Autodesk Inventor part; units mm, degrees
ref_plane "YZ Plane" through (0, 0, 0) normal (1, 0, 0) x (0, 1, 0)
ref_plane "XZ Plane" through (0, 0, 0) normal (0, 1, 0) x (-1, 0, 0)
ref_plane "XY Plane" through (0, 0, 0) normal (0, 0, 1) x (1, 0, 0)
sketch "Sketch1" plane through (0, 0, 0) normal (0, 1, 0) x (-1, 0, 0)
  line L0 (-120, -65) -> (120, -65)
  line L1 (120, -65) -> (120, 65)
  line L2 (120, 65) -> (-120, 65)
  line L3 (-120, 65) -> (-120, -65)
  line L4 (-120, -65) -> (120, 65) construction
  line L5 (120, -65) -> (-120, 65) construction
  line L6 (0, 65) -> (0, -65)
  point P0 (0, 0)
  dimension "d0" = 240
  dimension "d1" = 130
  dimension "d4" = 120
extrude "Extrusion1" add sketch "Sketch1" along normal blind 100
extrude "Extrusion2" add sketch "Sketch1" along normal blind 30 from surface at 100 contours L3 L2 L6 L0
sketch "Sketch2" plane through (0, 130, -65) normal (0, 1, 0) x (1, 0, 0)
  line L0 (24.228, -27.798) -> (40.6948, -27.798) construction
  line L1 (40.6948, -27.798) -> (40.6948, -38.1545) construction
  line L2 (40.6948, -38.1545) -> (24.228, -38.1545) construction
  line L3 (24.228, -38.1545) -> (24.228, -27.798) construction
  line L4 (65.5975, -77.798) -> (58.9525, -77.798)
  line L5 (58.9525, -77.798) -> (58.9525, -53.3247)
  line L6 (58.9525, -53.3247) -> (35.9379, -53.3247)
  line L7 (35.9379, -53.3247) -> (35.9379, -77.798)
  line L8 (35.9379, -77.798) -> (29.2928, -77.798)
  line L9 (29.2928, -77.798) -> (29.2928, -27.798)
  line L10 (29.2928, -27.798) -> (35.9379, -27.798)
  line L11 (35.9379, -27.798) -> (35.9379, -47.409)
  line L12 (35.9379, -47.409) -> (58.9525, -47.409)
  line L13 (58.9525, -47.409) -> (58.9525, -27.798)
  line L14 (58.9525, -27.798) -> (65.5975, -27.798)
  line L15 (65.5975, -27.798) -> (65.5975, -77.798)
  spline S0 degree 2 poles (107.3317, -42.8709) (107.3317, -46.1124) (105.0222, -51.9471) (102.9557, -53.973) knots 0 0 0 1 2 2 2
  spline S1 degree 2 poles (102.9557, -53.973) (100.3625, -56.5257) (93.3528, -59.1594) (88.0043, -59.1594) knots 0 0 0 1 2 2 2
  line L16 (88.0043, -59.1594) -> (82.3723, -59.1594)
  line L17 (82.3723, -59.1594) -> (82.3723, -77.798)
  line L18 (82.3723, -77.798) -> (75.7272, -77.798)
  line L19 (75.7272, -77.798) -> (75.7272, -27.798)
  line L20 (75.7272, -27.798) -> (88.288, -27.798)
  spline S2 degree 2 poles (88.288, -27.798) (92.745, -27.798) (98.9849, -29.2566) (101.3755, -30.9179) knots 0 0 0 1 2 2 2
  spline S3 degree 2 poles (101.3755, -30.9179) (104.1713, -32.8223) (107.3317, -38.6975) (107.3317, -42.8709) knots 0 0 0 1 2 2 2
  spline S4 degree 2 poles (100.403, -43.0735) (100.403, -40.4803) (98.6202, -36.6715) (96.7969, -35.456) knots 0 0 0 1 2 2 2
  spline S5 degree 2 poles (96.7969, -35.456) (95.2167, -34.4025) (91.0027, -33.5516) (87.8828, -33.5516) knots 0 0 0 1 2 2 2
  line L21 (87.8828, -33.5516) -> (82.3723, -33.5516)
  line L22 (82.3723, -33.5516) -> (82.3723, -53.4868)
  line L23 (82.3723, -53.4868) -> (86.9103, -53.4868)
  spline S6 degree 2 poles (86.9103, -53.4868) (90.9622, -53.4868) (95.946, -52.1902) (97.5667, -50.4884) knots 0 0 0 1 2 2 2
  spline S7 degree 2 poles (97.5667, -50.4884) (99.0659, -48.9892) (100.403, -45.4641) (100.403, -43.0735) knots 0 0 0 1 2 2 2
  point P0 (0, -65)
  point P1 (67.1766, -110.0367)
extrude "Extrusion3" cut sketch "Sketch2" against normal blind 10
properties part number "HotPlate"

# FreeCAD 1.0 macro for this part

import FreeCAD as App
import Part
import Sketcher
from FreeCAD import Vector
Q = App.Units.Quantity

doc = App.newDocument("Part")
body = doc.addObject("PartDesign::Body", "Body")

sketch1 = body.newObject("Sketcher::SketchObject", "Sketch")
sketch1.AttachmentSupport = (doc.getObject("XZ_Plane"), [""])
sketch1.MapMode = "FlatFace"
sketch1.addGeometry(Part.LineSegment(Vector(120, 65, 0), Vector(120, -65, 0)), False)
sketch1.addGeometry(Part.LineSegment(Vector(120, -65, 0), Vector(-120, -65, 0)), False)
sketch1.addGeometry(Part.LineSegment(Vector(-120, -65, 0), Vector(-120, 65, 0)), False)
sketch1.addGeometry(Part.LineSegment(Vector(-120, 65, 0), Vector(120, 65, 0)), False)
sketch1.addConstraint(Sketcher.Constraint("Coincident", 0, 2, 1, 1))
sketch1.addConstraint(Sketcher.Constraint("Coincident", 1, 2, 2, 1))
sketch1.addConstraint(Sketcher.Constraint("Coincident", 2, 2, 3, 1))
sketch1.addConstraint(Sketcher.Constraint("Coincident", 3, 2, 0, 1))
sketch1.addConstraint(Sketcher.Constraint("Vertical", 0))
sketch1.addConstraint(Sketcher.Constraint("Horizontal", 1))
sketch1.addConstraint(Sketcher.Constraint("Vertical", 2))
sketch1.addConstraint(Sketcher.Constraint("Horizontal", 3))
sketch1.addConstraint(Sketcher.Constraint("Symmetric", 0, 2, 2, 2, -1, 1))
sketch1.addConstraint(Sketcher.Constraint("DistanceX", 1, 2, 1, 1, Q("240 mm")))
sketch1.addConstraint(Sketcher.Constraint("DistanceY", 0, 2, 0, 1, Q("130 mm")))
pad1 = body.newObject("PartDesign::Pad", "Pad")
pad1.Profile = sketch1
pad1.Length = 100
pad1.Reversed = True

sketch2 = body.newObject("Sketcher::SketchObject", "Sketch001")
sketch2.AttachmentSupport = (doc.getObject("XZ_Plane"), [""])
sketch2.MapMode = "FlatFace"
sketch2.AttachmentOffset = App.Placement(Vector(0, 0, -100), App.Rotation())
sketch2.addGeometry(Part.LineSegment(Vector(120, 65, 0), Vector(120, -65, 0)), False)
sketch2.addGeometry(Part.LineSegment(Vector(120, -65, 0), Vector(0, -65, 0)), False)
sketch2.addGeometry(Part.LineSegment(Vector(0, -65, 0), Vector(0, 65, 0)), False)
sketch2.addGeometry(Part.LineSegment(Vector(0, 65, 0), Vector(120, 65, 0)), False)
sketch2.addConstraint(Sketcher.Constraint("Coincident", 0, 2, 1, 1))
sketch2.addConstraint(Sketcher.Constraint("Coincident", 1, 2, 2, 1))
sketch2.addConstraint(Sketcher.Constraint("Coincident", 2, 2, 3, 1))
sketch2.addConstraint(Sketcher.Constraint("Coincident", 3, 2, 0, 1))
sketch2.addConstraint(Sketcher.Constraint("Vertical", 0))
sketch2.addConstraint(Sketcher.Constraint("Horizontal", 1))
sketch2.addConstraint(Sketcher.Constraint("Vertical", 2))
sketch2.addConstraint(Sketcher.Constraint("Horizontal", 3))
sketch2.addConstraint(Sketcher.Constraint("Symmetric", 1, 2, 2, 2, -1, 1))
sketch2.addConstraint(Sketcher.Constraint("DistanceX", 1, 2, 1, 1, Q("120 mm")))
sketch2.addConstraint(Sketcher.Constraint("DistanceY", 0, 2, 0, 1, Q("130 mm")))
pad2 = body.newObject("PartDesign::Pad", "Pad001")
pad2.Profile = sketch2
pad2.Length = 30
pad2.Reversed = True

sketch3 = body.newObject("Sketcher::SketchObject", "Sketch002")
sketch3.AttachmentSupport = (doc.getObject("XZ_Plane"), [""])
sketch3.MapMode = "FlatFace"
sketch3.AttachmentOffset = App.Placement(Vector(0, 0, -130), App.Rotation())
sketch3.addGeometry(Part.LineSegment(Vector(58.9525, 12.798, 0), Vector(65.5975, 12.798, 0)), False)
sketch3.addGeometry(Part.LineSegment(Vector(65.5975, 12.798, 0), Vector(65.5975, -37.202, 0)), False)
sketch3.addGeometry(Part.LineSegment(Vector(65.5975, -37.202, 0), Vector(58.9525, -37.202, 0)), False)
sketch3.addGeometry(Part.LineSegment(Vector(58.9525, -37.202, 0), Vector(58.9525, -17.591, 0)), False)
sketch3.addGeometry(Part.LineSegment(Vector(58.9525, -17.591, 0), Vector(35.9379, -17.591, 0)), False)
sketch3.addGeometry(Part.LineSegment(Vector(35.9379, -17.591, 0), Vector(35.9379, -37.202, 0)), False)
sketch3.addGeometry(Part.LineSegment(Vector(35.9379, -37.202, 0), Vector(29.2928, -37.202, 0)), False)
sketch3.addGeometry(Part.LineSegment(Vector(29.2928, -37.202, 0), Vector(29.2928, 12.798, 0)), False)
sketch3.addGeometry(Part.LineSegment(Vector(29.2928, 12.798, 0), Vector(35.9379, 12.798, 0)), False)
sketch3.addGeometry(Part.LineSegment(Vector(35.9379, 12.798, 0), Vector(35.9379, -11.6753, 0)), False)
sketch3.addGeometry(Part.LineSegment(Vector(35.9379, -11.6753, 0), Vector(58.9525, -11.6753, 0)), False)
sketch3.addGeometry(Part.LineSegment(Vector(58.9525, -11.6753, 0), Vector(58.9525, 12.798, 0)), False)
sketch3.addGeometry(Part.BSplineCurve([Vector(107.3317, -22.1291, 0), Vector(107.3317, -18.8876, 0), Vector(105.0222, -13.0529, 0), Vector(102.9557, -11.027, 0)], [3, 1, 3], [0, 1, 2], False, 2, [1, 1, 1, 1], False), False)
sketch3.addGeometry(Part.BSplineCurve([Vector(101.3755, -34.0821, 0), Vector(104.1713, -32.1777, 0), Vector(107.3317, -26.3025, 0), Vector(107.3317, -22.1291, 0)], [3, 1, 3], [0, 1, 2], False, 2, [1, 1, 1, 1], False), False)
sketch3.addGeometry(Part.BSplineCurve([Vector(88.288, -37.202, 0), Vector(92.745, -37.202, 0), Vector(98.9849, -35.7434, 0), Vector(101.3755, -34.0821, 0)], [3, 1, 3], [0, 1, 2], False, 2, [1, 1, 1, 1], False), False)
sketch3.addGeometry(Part.LineSegment(Vector(88.288, -37.202, 0), Vector(75.7272, -37.202, 0)), False)
sketch3.addGeometry(Part.LineSegment(Vector(75.7272, -37.202, 0), Vector(75.7272, 12.798, 0)), False)
sketch3.addGeometry(Part.LineSegment(Vector(75.7272, 12.798, 0), Vector(82.3723, 12.798, 0)), False)
sketch3.addGeometry(Part.LineSegment(Vector(82.3723, 12.798, 0), Vector(82.3723, -5.8406, 0)), False)
sketch3.addGeometry(Part.LineSegment(Vector(82.3723, -5.8406, 0), Vector(88.0043, -5.8406, 0)), False)
sketch3.addGeometry(Part.BSplineCurve([Vector(102.9557, -11.027, 0), Vector(100.3625, -8.4743, 0), Vector(93.3528, -5.8406, 0), Vector(88.0043, -5.8406, 0)], [3, 1, 3], [0, 1, 2], False, 2, [1, 1, 1, 1], False), False)
sketch3.addGeometry(Part.BSplineCurve([Vector(100.403, -21.9265, 0), Vector(100.403, -24.5197, 0), Vector(98.6202, -28.3285, 0), Vector(96.7969, -29.544, 0)], [3, 1, 3], [0, 1, 2], False, 2, [1, 1, 1, 1], False), False)
sketch3.addGeometry(Part.BSplineCurve([Vector(97.5667, -14.5116, 0), Vector(99.0659, -16.0108, 0), Vector(100.403, -19.5359, 0), Vector(100.403, -21.9265, 0)], [3, 1, 3], [0, 1, 2], False, 2, [1, 1, 1, 1], False), False)
sketch3.addGeometry(Part.BSplineCurve([Vector(86.9103, -11.5132, 0), Vector(90.9622, -11.5132, 0), Vector(95.946, -12.8098, 0), Vector(97.5667, -14.5116, 0)], [3, 1, 3], [0, 1, 2], False, 2, [1, 1, 1, 1], False), False)
sketch3.addGeometry(Part.LineSegment(Vector(86.9103, -11.5132, 0), Vector(82.3723, -11.5132, 0)), False)
sketch3.addGeometry(Part.LineSegment(Vector(82.3723, -11.5132, 0), Vector(82.3723, -31.4484, 0)), False)
sketch3.addGeometry(Part.LineSegment(Vector(82.3723, -31.4484, 0), Vector(87.8828, -31.4484, 0)), False)
sketch3.addGeometry(Part.BSplineCurve([Vector(96.7969, -29.544, 0), Vector(95.2167, -30.5975, 0), Vector(91.0027, -31.4484, 0), Vector(87.8828, -31.4484, 0)], [3, 1, 3], [0, 1, 2], False, 2, [1, 1, 1, 1], False), False)
sketch3.addConstraint(Sketcher.Constraint("Block", 12))
sketch3.addConstraint(Sketcher.Constraint("Block", 13))
sketch3.addConstraint(Sketcher.Constraint("Block", 14))
sketch3.addConstraint(Sketcher.Constraint("Block", 20))
sketch3.addConstraint(Sketcher.Constraint("Block", 21))
sketch3.addConstraint(Sketcher.Constraint("Block", 22))
sketch3.addConstraint(Sketcher.Constraint("Block", 23))
sketch3.addConstraint(Sketcher.Constraint("Block", 27))
sketch3.addConstraint(Sketcher.Constraint("Coincident", 0, 2, 1, 1))
sketch3.addConstraint(Sketcher.Constraint("Coincident", 1, 2, 2, 1))
sketch3.addConstraint(Sketcher.Constraint("Coincident", 2, 2, 3, 1))
sketch3.addConstraint(Sketcher.Constraint("Coincident", 3, 2, 4, 1))
sketch3.addConstraint(Sketcher.Constraint("Coincident", 4, 2, 5, 1))
sketch3.addConstraint(Sketcher.Constraint("Coincident", 5, 2, 6, 1))
sketch3.addConstraint(Sketcher.Constraint("Coincident", 6, 2, 7, 1))
sketch3.addConstraint(Sketcher.Constraint("Coincident", 7, 2, 8, 1))
sketch3.addConstraint(Sketcher.Constraint("Coincident", 8, 2, 9, 1))
sketch3.addConstraint(Sketcher.Constraint("Coincident", 9, 2, 10, 1))
sketch3.addConstraint(Sketcher.Constraint("Coincident", 10, 2, 11, 1))
sketch3.addConstraint(Sketcher.Constraint("Coincident", 11, 2, 0, 1))
sketch3.addConstraint(Sketcher.Constraint("Coincident", 14, 1, 15, 1))
sketch3.addConstraint(Sketcher.Constraint("Coincident", 15, 2, 16, 1))
sketch3.addConstraint(Sketcher.Constraint("Coincident", 16, 2, 17, 1))
sketch3.addConstraint(Sketcher.Constraint("Coincident", 17, 2, 18, 1))
sketch3.addConstraint(Sketcher.Constraint("Coincident", 18, 2, 19, 1))
sketch3.addConstraint(Sketcher.Constraint("Coincident", 19, 2, 20, 2))
sketch3.addConstraint(Sketcher.Constraint("Coincident", 23, 1, 24, 1))
sketch3.addConstraint(Sketcher.Constraint("Coincident", 24, 2, 25, 1))
sketch3.addConstraint(Sketcher.Constraint("Coincident", 25, 2, 26, 1))
sketch3.addConstraint(Sketcher.Constraint("Coincident", 26, 2, 27, 2))
sketch3.addConstraint(Sketcher.Constraint("Horizontal", 0))
sketch3.addConstraint(Sketcher.Constraint("Vertical", 1))
sketch3.addConstraint(Sketcher.Constraint("Horizontal", 2))
sketch3.addConstraint(Sketcher.Constraint("Vertical", 3))
sketch3.addConstraint(Sketcher.Constraint("Horizontal", 4))
sketch3.addConstraint(Sketcher.Constraint("Vertical", 5))
sketch3.addConstraint(Sketcher.Constraint("Horizontal", 6))
sketch3.addConstraint(Sketcher.Constraint("Vertical", 7))
sketch3.addConstraint(Sketcher.Constraint("Horizontal", 8))
sketch3.addConstraint(Sketcher.Constraint("Vertical", 9))
sketch3.addConstraint(Sketcher.Constraint("Horizontal", 10))
sketch3.addConstraint(Sketcher.Constraint("Vertical", 11))
sketch3.addConstraint(Sketcher.Constraint("Horizontal", 15))
sketch3.addConstraint(Sketcher.Constraint("Vertical", 16))
sketch3.addConstraint(Sketcher.Constraint("Horizontal", 17))
sketch3.addConstraint(Sketcher.Constraint("Vertical", 18))
sketch3.addConstraint(Sketcher.Constraint("Horizontal", 19))
sketch3.addConstraint(Sketcher.Constraint("Horizontal", 24))
sketch3.addConstraint(Sketcher.Constraint("Vertical", 25))
sketch3.addConstraint(Sketcher.Constraint("Horizontal", 26))
sketch3.addConstraint(Sketcher.Constraint("Horizontal", 2, 2, 5, 2))
sketch3.addConstraint(Sketcher.Constraint("Horizontal", 0, 2, 7, 2))
sketch3.addConstraint(Sketcher.Constraint("Horizontal", 6, 2, 15, 2))
sketch3.addConstraint(Sketcher.Constraint("Horizontal", 11, 2, 16, 2))
sketch3.addConstraint(Sketcher.Constraint("Vertical", 5, 2, 8, 2))
sketch3.addConstraint(Sketcher.Constraint("Vertical", 3, 2, 10, 2))
sketch3.addConstraint(Sketcher.Constraint("Vertical", 18, 2, 24, 2))
sketch3.addConstraint(Sketcher.Constraint("Equal", 2, 6))
sketch3.addConstraint(Sketcher.Constraint("Equal", 8, 17))
sketch3.addConstraint(Sketcher.Constraint("DistanceY", 1, 2, 1, 1, Q("50 mm")))
sketch3.addConstraint(Sketcher.Constraint("DistanceX", 0, 1, 0, 2, Q("6.645 mm")))
sketch3.addConstraint(Sketcher.Constraint("DistanceX", 19, 1, 19, 2, Q("5.632 mm")))
sketch3.addConstraint(Sketcher.Constraint("DistanceY", 3, 1, 3, 2, Q("19.611 mm")))
sketch3.addConstraint(Sketcher.Constraint("DistanceX", 4, 2, 4, 1, Q("23.0146 mm")))
sketch3.addConstraint(Sketcher.Constraint("DistanceY", 9, 2, 9, 1, Q("24.4733 mm")))
sketch3.addConstraint(Sketcher.Constraint("DistanceX", -1, 1, 4, 2, Q("35.938 mm")))
pocket1 = body.newObject("PartDesign::Pocket", "Pocket")
pocket1.Profile = sketch3
pocket1.Length = 10
pocket1.Reversed = True

doc.recompute()
